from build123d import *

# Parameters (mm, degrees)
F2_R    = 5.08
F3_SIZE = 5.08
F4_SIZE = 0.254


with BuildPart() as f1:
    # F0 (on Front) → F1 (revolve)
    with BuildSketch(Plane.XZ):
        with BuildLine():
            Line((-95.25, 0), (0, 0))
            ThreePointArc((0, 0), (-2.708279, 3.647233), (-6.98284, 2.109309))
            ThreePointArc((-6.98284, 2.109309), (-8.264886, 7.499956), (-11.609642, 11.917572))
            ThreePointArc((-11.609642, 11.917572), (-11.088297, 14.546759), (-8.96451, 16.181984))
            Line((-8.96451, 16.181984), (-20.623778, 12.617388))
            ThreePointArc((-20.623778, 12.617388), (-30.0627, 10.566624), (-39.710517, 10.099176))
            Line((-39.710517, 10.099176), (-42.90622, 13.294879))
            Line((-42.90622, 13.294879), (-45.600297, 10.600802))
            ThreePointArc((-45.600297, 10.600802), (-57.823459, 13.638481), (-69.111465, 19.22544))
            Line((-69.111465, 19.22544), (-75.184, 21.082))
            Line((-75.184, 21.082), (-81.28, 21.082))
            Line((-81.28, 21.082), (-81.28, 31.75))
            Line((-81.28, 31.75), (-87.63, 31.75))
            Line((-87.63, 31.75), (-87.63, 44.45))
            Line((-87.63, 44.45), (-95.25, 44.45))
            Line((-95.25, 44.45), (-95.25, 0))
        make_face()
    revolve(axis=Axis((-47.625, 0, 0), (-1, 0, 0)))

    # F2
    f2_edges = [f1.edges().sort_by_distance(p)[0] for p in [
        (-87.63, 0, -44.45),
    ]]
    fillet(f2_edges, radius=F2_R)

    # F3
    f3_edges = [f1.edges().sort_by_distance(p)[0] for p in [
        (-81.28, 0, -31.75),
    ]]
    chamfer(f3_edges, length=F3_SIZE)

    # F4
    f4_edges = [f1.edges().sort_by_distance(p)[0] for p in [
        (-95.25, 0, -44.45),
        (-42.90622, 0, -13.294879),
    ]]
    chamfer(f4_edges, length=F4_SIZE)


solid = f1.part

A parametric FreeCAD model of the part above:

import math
import FreeCAD as App
import Part
import Sketcher
Q = App.Units.Quantity


def edges_at(feature, points):
    """Names of the edges that pass closest to the given points."""
    edges = feature.Shape.Edges
    near = lambda p: min(range(len(edges)), key=lambda i: edges[i].distToShape(Part.Vertex(*p))[0])
    return sorted({f"Edge{near(p) + 1}" for p in points})

doc = App.newDocument("Part")
body = doc.addObject("PartDesign::Body", "Body")

sketch1 = doc.addObject("Sketcher::SketchObject", "Sketch")
body.addObject(sketch1)
sketch1.AttachmentSupport = (doc.XZ_Plane, [""])
sketch1.MapMode = "FlatFace"
sketch1.addGeometry(Part.LineSegment(App.Vector(-95.25, 0, 0), App.Vector(0, 0, 0)), False)
sketch1.addGeometry(Part.ArcOfCircle(Part.Circle(App.Vector(-3.81, 0, 0), App.Vector(0, 0, 1), 3.81), math.radians(0.000004), math.radians(146.383975)), False)
sketch1.addGeometry(Part.ArcOfCircle(Part.Circle(App.Vector(-20.440229, 1.756544, 0), App.Vector(0, 0, 1), 13.462012), math.radians(1.501579), math.radians(49.007259)), False)
sketch1.addGeometry(Part.ArcOfCircle(Part.Circle(App.Vector(-7.850576, 12.538464, 0), App.Vector(0, 0, 1), 3.809998), math.radians(106.999974), math.radians(189.378978)), False)
sketch1.addGeometry(Part.LineSegment(App.Vector(-8.96451, 16.181984, 0), App.Vector(-20.623778, 12.617388, 0)), False)
sketch1.addGeometry(Part.ArcOfCircle(Part.Circle(App.Vector(-37.704131, 68.484705, 0), App.Vector(0, 0, 1), 58.419993), math.radians(-91.968163), math.radians(-73)), False)
sketch1.addGeometry(Part.LineSegment(App.Vector(-39.710517, 10.099176, 0), App.Vector(-42.90622, 13.294879, 0)), False)
sketch1.addGeometry(Part.LineSegment(App.Vector(-42.90622, 13.294879, 0), App.Vector(-45.600297, 10.600802, 0)), False)
sketch1.addGeometry(Part.ArcOfCircle(Part.Circle(App.Vector(-37.704122, 68.484739, 0), App.Vector(0, 0, 1), 58.420028), math.radians(-122.521265), math.radians(-97.767995)), False)
sketch1.addGeometry(Part.LineSegment(App.Vector(-69.111465, 19.22544, 0), App.Vector(-75.184, 21.082, 0)), False)
sketch1.addGeometry(Part.LineSegment(App.Vector(-75.184, 21.082, 0), App.Vector(-81.28, 21.082, 0)), False)
sketch1.addGeometry(Part.LineSegment(App.Vector(-81.28, 21.082, 0), App.Vector(-81.28, 31.75, 0)), False)
sketch1.addGeometry(Part.LineSegment(App.Vector(-81.28, 31.75, 0), App.Vector(-87.63, 31.75, 0)), False)
sketch1.addGeometry(Part.LineSegment(App.Vector(-87.63, 31.75, 0), App.Vector(-87.63, 44.45, 0)), False)
sketch1.addGeometry(Part.LineSegment(App.Vector(-87.63, 44.45, 0), App.Vector(-95.25, 44.45, 0)), False)
sketch1.addGeometry(Part.LineSegment(App.Vector(-95.25, 44.45, 0), App.Vector(-95.25, 0, 0)), False)
sketch1.addConstraint(Sketcher.Constraint("Coincident", 0, 2, 1, 1))
sketch1.addConstraint(Sketcher.Constraint("Coincident", 1, 2, 2, 1))
sketch1.addConstraint(Sketcher.Constraint("Coincident", 2, 2, 3, 2))
sketch1.addConstraint(Sketcher.Constraint("Coincident", 3, 1, 4, 1))
sketch1.addConstraint(Sketcher.Constraint("Coincident", 4, 2, 5, 2))
sketch1.addConstraint(Sketcher.Constraint("Coincident", 5, 1, 6, 1))
sketch1.addConstraint(Sketcher.Constraint("Coincident", 6, 2, 7, 1))
sketch1.addConstraint(Sketcher.Constraint("Coincident", 7, 2, 8, 2))
sketch1.addConstraint(Sketcher.Constraint("Coincident", 8, 1, 9, 1))
sketch1.addConstraint(Sketcher.Constraint("Coincident", 9, 2, 10, 1))
sketch1.addConstraint(Sketcher.Constraint("Coincident", 10, 2, 11, 1))
sketch1.addConstraint(Sketcher.Constraint("Coincident", 11, 2, 12, 1))
sketch1.addConstraint(Sketcher.Constraint("Coincident", 12, 2, 13, 1))
sketch1.addConstraint(Sketcher.Constraint("Coincident", 13, 2, 14, 1))
sketch1.addConstraint(Sketcher.Constraint("Coincident", 14, 2, 15, 1))
sketch1.addConstraint(Sketcher.Constraint("Coincident", 15, 2, 0, 1))
sketch1.addConstraint(Sketcher.Constraint("Horizontal", 0))
sketch1.addConstraint(Sketcher.Constraint("Horizontal", 10))
sketch1.addConstraint(Sketcher.Constraint("Vertical", 11))
sketch1.addConstraint(Sketcher.Constraint("Horizontal", 12))
sketch1.addConstraint(Sketcher.Constraint("Vertical", 13))
sketch1.addConstraint(Sketcher.Constraint("Horizontal", 14))
sketch1.addConstraint(Sketcher.Constraint("Vertical", 15))
sketch1.addConstraint(Sketcher.Constraint("Coincident", 0, 2, -1, 1))
sketch1.addConstraint(Sketcher.Constraint("PointOnObject", 1, 3, -1))
sketch1.addConstraint(Sketcher.Constraint("Radius", 1, Q("0.15 in")))
sketch1.addConstraint(Sketcher.Constraint("Radius", 3, Q("0.1499999 in")))
sketch1.addConstraint(Sketcher.Constraint("DistanceX", 14, 2, 14, 1, Q("0.3 in")))
sketch1.addConstraint(Sketcher.Constraint("DistanceY", 13, 1, 13, 2, Q("0.5 in")))
sketch1.addConstraint(Sketcher.Constraint("DistanceX", 0, 1, 0, 2, Q("3.75 in")))
sketch1.addConstraint(Sketcher.Constraint("DistanceX", 10, 2, 10, 1, Q("0.24 in")))
sketch1.addConstraint(Sketcher.Constraint("DistanceX", 12, 2, 12, 1, Q("0.25 in")))
sketch1.addConstraint(Sketcher.Constraint("DistanceY", 11, 1, 11, 2, Q("0.42 in")))
sketch1.addConstraint(Sketcher.Constraint("DistanceY", 15, 2, 15, 1, Q("1.75 in")))
sketch1.addConstraint(Sketcher.Constraint("Distance", 4, Q("0.48 in")))
sketch1.addConstraint(Sketcher.Constraint("Distance", 7, Q("0.15 in")))
sketch1.addConstraint(Sketcher.Constraint("Distance", 9, Q("0.25 in")))
sketch1.addConstraint(Sketcher.Constraint("Radius", 8, Q("58.420028 mm")))
sketch1.addConstraint(Sketcher.Constraint("Radius", 2, Q("13.462012 mm")))
sketch1.addConstraint(Sketcher.Constraint("Radius", 5, Q("58.419993 mm")))
sketch1.addConstraint(Sketcher.Constraint("DistanceX", 2, 3, 3, 1, Q("0.4518 in")))
sketch1.addConstraint(Sketcher.Constraint("DistanceX", 2, 2, 1, 2, Q("4.626802 mm")))
sketch1.addConstraint(Sketcher.Constraint("DistanceX", 4, 2, 3, 3, Q("12.773202 mm")))
sketch1.addConstraint(Sketcher.Constraint("DistanceY", 7, 2, 9, 2, Q("10.481198 mm")))
sketch1.addConstraint(Sketcher.Constraint("DistanceX", 2, 3, -1, 1, Q("20.440229 mm")))
sketch1.addConstraint(Sketcher.Constraint("DistanceX", 5, 3, -1, 1, Q("37.704131 mm")))
sketch1.addConstraint(Sketcher.Constraint("DistanceX", 8, 3, -1, 1, Q("37.704122 mm")))
sketch1.addConstraint(Sketcher.Constraint("DistanceY", -1, 1, 8, 3, Q("68.484739 mm")))
sketch1.addConstraint(Sketcher.Constraint("DistanceX", 1, 2, -1, 1, Q("6.98284 mm")))
sketch1.addConstraint(Sketcher.Constraint("DistanceX", 4, 2, -1, 1, Q("20.623778 mm")))
sketch1.addConstraint(Sketcher.Constraint("DistanceX", 6, 2, -1, 1, Q("42.90622 mm")))
sketch1.addConstraint(Sketcher.Constraint("DistanceX", 5, 1, 4, 2, Q("19.086739 mm")))
revolution = doc.addObject("PartDesign::Revolution", "Revolution")
body.addObject(revolution)
revolution.Profile = sketch1
revolution.ReferenceAxis = (sketch1, ["H_Axis"])
revolution.Angle = 360
doc.recompute()

fillet = doc.addObject("PartDesign::Fillet", "Fillet")
body.addObject(fillet)
fillet.Base = (revolution, edges_at(revolution, [(-87.63, 0, -44.45)]))
fillet.Radius = Q("0.2 in")
doc.recompute()

chamfer = doc.addObject("PartDesign::Chamfer", "Chamfer")
body.addObject(chamfer)
chamfer.Base = (fillet, edges_at(fillet, [(-81.28, 0, -31.75)]))
chamfer.Size = Q("0.2 in")
doc.recompute()

chamfer2 = doc.addObject("PartDesign::Chamfer", "Chamfer001")
body.addObject(chamfer2)
chamfer2.Base = (chamfer, edges_at(chamfer, [(-95.25, 0, -44.45), (-42.906, 0, -13.295)]))
chamfer2.Size = Q("0.01 in")

doc.recompute()
